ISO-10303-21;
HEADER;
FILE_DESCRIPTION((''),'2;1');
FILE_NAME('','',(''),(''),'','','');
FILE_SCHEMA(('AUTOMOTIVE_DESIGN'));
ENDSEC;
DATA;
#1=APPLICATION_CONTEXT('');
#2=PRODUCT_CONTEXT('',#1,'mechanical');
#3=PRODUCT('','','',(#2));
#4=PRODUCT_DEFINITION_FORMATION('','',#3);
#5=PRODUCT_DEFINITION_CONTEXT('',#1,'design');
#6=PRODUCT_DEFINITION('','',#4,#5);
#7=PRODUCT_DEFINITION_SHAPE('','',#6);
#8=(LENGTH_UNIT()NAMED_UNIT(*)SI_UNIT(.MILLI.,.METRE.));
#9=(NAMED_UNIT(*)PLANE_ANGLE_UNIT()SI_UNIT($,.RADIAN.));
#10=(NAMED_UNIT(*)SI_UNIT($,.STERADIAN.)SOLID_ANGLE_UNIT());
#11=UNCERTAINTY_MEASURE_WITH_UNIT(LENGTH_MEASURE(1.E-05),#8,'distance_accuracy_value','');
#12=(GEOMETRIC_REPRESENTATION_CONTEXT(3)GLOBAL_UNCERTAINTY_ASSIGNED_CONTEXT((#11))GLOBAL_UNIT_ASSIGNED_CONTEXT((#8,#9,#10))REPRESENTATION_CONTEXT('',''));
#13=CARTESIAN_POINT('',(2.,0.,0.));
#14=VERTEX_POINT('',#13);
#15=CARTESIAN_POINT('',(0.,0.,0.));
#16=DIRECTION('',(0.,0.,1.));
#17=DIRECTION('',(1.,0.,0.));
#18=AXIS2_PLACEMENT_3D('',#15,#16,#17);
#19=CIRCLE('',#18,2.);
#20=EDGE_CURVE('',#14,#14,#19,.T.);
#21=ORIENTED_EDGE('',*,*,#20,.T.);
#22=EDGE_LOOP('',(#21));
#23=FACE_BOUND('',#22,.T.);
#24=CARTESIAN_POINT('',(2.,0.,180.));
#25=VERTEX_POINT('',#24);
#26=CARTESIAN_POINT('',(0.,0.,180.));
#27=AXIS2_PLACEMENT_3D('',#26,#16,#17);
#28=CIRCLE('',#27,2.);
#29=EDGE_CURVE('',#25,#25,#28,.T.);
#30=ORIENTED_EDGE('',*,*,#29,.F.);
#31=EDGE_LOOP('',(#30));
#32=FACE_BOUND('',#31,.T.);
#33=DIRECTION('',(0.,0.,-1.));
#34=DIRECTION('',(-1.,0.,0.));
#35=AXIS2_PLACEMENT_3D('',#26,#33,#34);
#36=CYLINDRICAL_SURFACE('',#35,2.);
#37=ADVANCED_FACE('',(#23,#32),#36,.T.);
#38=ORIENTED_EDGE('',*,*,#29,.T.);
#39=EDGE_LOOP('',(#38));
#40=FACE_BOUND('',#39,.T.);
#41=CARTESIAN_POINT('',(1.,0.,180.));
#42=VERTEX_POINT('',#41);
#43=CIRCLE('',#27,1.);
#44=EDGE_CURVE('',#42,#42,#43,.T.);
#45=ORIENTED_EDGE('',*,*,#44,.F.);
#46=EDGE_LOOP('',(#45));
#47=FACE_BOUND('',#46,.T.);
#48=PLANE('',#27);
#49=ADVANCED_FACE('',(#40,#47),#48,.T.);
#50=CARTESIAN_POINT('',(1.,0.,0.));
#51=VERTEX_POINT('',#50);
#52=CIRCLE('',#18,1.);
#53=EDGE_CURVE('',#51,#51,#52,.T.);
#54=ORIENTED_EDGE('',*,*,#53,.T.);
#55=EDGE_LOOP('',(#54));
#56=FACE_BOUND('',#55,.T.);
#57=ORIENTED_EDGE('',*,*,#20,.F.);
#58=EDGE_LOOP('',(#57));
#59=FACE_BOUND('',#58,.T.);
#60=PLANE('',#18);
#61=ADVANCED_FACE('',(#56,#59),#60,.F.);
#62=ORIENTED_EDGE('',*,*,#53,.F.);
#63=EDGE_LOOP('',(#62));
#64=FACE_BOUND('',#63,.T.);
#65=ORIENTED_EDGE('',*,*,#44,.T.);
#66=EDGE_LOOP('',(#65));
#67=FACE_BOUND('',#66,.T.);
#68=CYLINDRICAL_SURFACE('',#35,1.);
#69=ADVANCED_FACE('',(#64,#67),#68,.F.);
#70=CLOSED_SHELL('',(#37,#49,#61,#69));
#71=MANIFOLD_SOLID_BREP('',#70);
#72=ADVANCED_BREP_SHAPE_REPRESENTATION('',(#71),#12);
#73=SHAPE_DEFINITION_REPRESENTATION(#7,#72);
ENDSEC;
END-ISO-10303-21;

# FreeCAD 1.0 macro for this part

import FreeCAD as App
import Part
import Sketcher

V = App.Vector
Q = App.Units.Quantity

doc = App.newDocument("Part")
body = doc.addObject("PartDesign::Body", "Body")

# Sketch on XY plane
sketch1 = body.newObject("Sketcher::SketchObject", "Sketch")
sketch1.AttachmentSupport = (doc.getObject("XY_Plane"), [""])
sketch1.MapMode = "FlatFace"
sketch1.addGeometry([
    Part.Circle(V(0, 0, 0), V(0, 0, 1), 2),
    Part.Circle(V(0, 0, 0), V(0, 0, 1), 1),
], False)
sketch1.addConstraint([
    Sketcher.Constraint("Coincident", 0, 3, -1, 1),
    Sketcher.Constraint("Coincident", 1, 3, -1, 1),
    Sketcher.Constraint("Diameter", 0, Q("4 mm")),
    Sketcher.Constraint("Diameter", 1, Q("2 mm")),
])
pad1 = body.newObject("PartDesign::Pad", "Pad")
pad1.Profile = sketch1
pad1.Length = 180

doc.recompute()
